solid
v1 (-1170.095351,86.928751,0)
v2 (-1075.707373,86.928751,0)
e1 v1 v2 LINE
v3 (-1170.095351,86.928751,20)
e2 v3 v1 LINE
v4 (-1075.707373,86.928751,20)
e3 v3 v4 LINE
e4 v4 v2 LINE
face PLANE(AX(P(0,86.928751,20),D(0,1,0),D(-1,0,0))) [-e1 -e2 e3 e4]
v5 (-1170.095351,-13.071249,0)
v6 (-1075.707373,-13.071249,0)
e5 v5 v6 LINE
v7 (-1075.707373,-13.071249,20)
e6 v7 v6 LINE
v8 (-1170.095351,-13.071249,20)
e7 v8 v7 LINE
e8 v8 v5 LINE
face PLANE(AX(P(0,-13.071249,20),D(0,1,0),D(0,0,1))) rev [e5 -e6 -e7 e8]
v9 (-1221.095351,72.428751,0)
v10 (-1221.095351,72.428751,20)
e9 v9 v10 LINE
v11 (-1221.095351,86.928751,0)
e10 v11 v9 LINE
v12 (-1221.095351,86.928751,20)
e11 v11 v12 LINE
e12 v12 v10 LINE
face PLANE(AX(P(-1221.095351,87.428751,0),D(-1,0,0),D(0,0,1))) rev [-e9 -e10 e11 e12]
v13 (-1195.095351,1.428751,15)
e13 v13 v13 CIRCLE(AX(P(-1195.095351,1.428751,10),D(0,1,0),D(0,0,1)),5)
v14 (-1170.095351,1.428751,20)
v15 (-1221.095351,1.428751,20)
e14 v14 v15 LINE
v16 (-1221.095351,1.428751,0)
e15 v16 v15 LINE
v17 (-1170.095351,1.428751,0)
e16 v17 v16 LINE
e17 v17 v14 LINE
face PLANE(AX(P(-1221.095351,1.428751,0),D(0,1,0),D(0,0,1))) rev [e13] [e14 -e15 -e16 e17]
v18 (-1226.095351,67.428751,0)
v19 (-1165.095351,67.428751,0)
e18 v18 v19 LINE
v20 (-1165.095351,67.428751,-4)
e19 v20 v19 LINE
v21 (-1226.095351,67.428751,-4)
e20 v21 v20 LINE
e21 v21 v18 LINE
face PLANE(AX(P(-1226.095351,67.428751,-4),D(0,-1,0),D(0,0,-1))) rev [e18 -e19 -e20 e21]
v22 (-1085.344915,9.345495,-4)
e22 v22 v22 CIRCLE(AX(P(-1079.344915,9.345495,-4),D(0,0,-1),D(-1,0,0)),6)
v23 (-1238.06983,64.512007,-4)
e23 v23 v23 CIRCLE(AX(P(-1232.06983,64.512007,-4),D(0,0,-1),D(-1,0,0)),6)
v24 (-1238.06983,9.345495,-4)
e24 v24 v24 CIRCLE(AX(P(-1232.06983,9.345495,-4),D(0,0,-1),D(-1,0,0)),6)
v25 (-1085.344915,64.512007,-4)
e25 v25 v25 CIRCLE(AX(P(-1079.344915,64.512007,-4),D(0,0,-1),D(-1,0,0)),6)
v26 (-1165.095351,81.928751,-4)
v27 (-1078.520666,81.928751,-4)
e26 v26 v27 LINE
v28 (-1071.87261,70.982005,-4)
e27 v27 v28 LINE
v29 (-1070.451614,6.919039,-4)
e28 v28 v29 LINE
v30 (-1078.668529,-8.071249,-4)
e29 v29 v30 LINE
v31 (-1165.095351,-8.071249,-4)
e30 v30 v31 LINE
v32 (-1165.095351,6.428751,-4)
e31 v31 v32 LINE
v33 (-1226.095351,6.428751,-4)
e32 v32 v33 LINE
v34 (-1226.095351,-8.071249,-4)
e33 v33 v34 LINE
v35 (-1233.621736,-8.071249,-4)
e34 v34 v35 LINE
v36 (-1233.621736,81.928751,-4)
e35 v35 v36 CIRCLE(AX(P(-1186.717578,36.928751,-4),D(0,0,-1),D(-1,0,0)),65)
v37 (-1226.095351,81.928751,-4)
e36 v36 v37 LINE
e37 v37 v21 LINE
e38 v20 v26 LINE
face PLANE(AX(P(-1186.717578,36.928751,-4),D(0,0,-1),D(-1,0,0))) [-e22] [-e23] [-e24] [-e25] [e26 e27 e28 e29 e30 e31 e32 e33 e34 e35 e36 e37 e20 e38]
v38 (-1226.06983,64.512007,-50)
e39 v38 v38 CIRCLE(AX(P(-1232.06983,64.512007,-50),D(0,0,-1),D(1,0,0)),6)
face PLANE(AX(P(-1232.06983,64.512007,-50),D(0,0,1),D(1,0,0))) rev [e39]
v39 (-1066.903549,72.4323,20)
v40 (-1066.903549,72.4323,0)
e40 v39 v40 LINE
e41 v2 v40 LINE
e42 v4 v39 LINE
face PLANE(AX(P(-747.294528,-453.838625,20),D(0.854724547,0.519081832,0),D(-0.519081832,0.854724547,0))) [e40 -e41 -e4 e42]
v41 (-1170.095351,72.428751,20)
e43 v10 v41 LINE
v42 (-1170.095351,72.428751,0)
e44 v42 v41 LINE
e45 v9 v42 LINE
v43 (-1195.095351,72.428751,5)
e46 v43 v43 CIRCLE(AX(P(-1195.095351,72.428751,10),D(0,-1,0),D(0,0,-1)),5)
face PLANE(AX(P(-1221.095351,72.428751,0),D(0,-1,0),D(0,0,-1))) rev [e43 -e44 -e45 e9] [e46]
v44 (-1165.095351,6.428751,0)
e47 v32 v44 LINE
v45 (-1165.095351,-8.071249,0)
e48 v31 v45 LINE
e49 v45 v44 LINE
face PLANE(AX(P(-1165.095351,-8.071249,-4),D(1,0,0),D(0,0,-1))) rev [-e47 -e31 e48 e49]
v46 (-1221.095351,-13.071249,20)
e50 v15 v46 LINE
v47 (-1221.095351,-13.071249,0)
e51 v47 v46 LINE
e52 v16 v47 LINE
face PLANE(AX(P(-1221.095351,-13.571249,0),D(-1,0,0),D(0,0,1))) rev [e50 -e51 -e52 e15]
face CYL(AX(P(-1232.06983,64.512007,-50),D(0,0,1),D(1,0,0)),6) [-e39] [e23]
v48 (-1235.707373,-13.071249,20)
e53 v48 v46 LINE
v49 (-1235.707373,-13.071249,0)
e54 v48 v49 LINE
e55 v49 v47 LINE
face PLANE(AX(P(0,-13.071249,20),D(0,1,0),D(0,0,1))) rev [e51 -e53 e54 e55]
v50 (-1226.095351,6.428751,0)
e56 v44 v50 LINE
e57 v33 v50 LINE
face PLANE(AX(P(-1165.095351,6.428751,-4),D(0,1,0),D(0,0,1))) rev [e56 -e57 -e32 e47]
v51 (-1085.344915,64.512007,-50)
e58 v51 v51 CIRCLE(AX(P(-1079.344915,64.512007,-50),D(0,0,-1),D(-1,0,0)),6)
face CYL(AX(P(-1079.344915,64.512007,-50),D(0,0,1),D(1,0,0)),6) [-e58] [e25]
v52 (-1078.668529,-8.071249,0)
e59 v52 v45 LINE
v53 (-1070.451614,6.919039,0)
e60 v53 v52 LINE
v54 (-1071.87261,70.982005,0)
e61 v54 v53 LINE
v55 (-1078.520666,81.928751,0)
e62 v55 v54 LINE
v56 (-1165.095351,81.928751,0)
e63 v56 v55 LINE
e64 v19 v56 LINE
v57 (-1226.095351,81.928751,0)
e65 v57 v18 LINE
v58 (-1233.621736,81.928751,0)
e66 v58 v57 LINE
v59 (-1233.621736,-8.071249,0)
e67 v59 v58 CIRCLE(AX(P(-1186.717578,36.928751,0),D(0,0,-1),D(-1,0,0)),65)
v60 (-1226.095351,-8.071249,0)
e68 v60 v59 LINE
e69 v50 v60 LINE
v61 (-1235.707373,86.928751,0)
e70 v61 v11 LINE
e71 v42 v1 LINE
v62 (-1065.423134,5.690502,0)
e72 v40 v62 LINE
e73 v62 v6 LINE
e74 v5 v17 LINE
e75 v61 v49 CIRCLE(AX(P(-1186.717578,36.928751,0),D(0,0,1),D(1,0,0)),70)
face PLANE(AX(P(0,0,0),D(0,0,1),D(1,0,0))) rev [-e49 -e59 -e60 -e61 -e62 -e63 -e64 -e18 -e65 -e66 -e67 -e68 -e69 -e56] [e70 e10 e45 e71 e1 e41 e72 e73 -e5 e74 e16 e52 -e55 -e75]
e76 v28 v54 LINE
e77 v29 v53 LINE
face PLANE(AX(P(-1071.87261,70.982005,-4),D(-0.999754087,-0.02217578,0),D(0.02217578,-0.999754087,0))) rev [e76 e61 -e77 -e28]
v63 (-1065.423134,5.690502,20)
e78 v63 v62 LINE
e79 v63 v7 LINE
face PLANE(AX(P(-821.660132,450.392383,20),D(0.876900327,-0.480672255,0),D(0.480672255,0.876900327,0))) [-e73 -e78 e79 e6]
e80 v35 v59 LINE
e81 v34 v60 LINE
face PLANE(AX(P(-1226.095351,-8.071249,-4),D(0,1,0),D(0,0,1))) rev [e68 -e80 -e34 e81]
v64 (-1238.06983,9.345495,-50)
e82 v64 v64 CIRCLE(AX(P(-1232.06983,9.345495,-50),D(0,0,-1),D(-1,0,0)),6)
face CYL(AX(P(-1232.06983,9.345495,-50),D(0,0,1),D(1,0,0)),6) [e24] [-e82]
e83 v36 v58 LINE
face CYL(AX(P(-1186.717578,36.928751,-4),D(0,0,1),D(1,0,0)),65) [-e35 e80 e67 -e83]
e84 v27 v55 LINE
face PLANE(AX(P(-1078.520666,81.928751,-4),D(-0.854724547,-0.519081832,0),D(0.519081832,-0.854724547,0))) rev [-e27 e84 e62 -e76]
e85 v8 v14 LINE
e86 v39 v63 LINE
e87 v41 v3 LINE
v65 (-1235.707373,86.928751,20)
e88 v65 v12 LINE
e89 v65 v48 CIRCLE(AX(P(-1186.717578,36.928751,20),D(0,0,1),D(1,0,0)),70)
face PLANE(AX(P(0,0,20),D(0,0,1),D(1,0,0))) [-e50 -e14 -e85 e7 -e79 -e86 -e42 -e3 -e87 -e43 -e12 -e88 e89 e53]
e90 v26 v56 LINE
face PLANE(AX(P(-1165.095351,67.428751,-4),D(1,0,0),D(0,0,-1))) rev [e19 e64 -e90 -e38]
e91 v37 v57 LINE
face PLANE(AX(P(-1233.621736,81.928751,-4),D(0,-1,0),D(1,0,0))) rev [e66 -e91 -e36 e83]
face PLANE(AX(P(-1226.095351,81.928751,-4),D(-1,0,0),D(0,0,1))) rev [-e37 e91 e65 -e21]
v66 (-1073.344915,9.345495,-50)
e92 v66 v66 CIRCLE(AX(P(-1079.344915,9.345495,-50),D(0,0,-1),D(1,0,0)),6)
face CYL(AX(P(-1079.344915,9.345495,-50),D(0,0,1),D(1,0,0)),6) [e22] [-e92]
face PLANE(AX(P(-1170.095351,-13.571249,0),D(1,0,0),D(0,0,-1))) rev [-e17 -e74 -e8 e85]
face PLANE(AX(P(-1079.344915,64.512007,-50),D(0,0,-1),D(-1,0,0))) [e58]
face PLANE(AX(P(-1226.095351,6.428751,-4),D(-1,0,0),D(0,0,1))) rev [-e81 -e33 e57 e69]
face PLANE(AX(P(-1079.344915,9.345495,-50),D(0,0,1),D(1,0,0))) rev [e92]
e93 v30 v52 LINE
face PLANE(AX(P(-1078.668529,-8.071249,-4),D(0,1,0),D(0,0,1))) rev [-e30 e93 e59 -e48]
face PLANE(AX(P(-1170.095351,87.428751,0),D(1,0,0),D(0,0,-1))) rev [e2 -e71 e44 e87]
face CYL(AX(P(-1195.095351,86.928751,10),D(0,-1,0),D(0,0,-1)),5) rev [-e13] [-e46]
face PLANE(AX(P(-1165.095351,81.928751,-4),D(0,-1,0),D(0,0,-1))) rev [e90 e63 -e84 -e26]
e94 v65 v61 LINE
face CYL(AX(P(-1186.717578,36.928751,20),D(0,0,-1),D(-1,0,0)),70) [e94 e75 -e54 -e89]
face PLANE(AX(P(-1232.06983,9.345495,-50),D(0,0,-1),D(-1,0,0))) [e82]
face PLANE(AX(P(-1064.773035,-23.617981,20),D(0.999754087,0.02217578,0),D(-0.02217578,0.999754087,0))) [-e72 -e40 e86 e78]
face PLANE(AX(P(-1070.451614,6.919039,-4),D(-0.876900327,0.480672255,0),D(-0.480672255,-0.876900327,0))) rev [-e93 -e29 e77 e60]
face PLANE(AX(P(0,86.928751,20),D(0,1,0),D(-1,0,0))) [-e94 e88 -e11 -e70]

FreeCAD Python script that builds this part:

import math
import FreeCAD as App
import Part
import Sketcher


def add_polygon(sketch, points):
    """Adds a closed chain of lines whose ends are joined by coincident constraints."""
    first, n = sketch.GeometryCount, len(points)
    for a, b in zip(points, points[1:] + points[:1]):
        sketch.addGeometry(Part.LineSegment(App.Vector(*a, 0), App.Vector(*b, 0)), False)
    for i in range(n):
        sketch.addConstraint(Sketcher.Constraint("Coincident", first + i, 2, first + (i + 1) % n, 1))

doc = App.newDocument("Part")
body = doc.addObject("PartDesign::Body", "Body")

# Sketch on XY plane
sketch1 = body.newObject("Sketcher::SketchObject", "Sketch")
sketch1.AttachmentSupport = (doc.getObject("XY_Plane"), [""])
sketch1.MapMode = "FlatFace"
sketch1.addGeometry([
    Part.LineSegment(App.Vector(-1236, -13, 0), App.Vector(-1076, -13, 0)),  # 0
    Part.LineSegment(App.Vector(-1076, -13, 0), App.Vector(-1065, 6, 0)),  # 1
    Part.LineSegment(App.Vector(-1065, 6, 0), App.Vector(-1067, 72, 0)),  # 2
    Part.LineSegment(App.Vector(-1067, 72, 0), App.Vector(-1076, 87, 0)),  # 3
    Part.LineSegment(App.Vector(-1076, 87, 0), App.Vector(-1236, 87, 0)),  # 4
    Part.ArcOfCircle(Part.Circle(App.Vector(-1187, 37, 0), App.Vector(0, 0, 1), 70), math.radians(134), math.radians(226)),  # 5
], False)
sketch1.addConstraint([
    Sketcher.Constraint("Coincident", 0, 2, 1, 1),
    Sketcher.Constraint("Coincident", 1, 2, 2, 1),
    Sketcher.Constraint("Coincident", 2, 2, 3, 1),
    Sketcher.Constraint("Coincident", 3, 2, 4, 1),
    Sketcher.Constraint("Coincident", 4, 2, 5, 1),
    Sketcher.Constraint("Coincident", 5, 2, 0, 1),
    Sketcher.Constraint("Horizontal", 0),
    Sketcher.Constraint("Horizontal", 4),
    Sketcher.Constraint("Vertical", 0, 2, 3, 2),
    Sketcher.Constraint("Vertical", 4, 2, 5, 2),
    Sketcher.Constraint("Radius", 5, 70.0),
    Sketcher.Constraint("DistanceX", 0, 1, 0, 2, 160.0),
    Sketcher.Constraint("DistanceY", 0, 2, 5, 3, 50.0),
    Sketcher.Constraint("DistanceY", -1, 1, 1, 2, 5.690502),
    Sketcher.Constraint("DistanceY", -1, 1, 2, 2, 72.4323),
    Sketcher.Constraint("DistanceY", -1, 1, 5, 3, 36.928751),
    Sketcher.Constraint("DistanceX", 2, 2, -1, 1, 1066.903549),
    Sketcher.Constraint("DistanceX", 0, 2, 1, 2, 10.284239),
    Sketcher.Constraint("DistanceX", 5, 3, 2, 2, 119.814029),
])
pad1 = body.newObject("PartDesign::Pad", "Pad")
pad1.Profile = sketch1
pad1.Length = 20

# Sketch on XY plane
sketch2 = body.newObject("Sketcher::SketchObject", "Sketch001")
sketch2.AttachmentSupport = (doc.getObject("XY_Plane"), [""])
sketch2.MapMode = "FlatFace"
sketch2.AttachmentOffset = App.Placement(App.Vector(0, 0, 20), App.Rotation())
add_polygon(sketch2, [(-1221, 1), (-1221, -14), (-1170, -14), (-1170, 1)])  # lines 0-3
add_polygon(sketch2, [(-1221, 87), (-1221, 72), (-1170, 72), (-1170, 87)])  # lines 4-7
sketch2.addConstraint([
    Sketcher.Constraint("Vertical", 0),
    Sketcher.Constraint("Horizontal", 1),
    Sketcher.Constraint("Vertical", 2),
    Sketcher.Constraint("Horizontal", 3),
    Sketcher.Constraint("Vertical", 4),
    Sketcher.Constraint("Horizontal", 5),
    Sketcher.Constraint("Vertical", 6),
    Sketcher.Constraint("Horizontal", 7),
    Sketcher.Constraint("Vertical", 3, 2, 4, 2),
    Sketcher.Constraint("Vertical", 2, 2, 5, 2),
    Sketcher.Constraint("Equal", 2, 4),
    Sketcher.Constraint("DistanceX", 1, 1, 1, 2, 51.0),
    Sketcher.Constraint("DistanceY", 0, 2, 0, 1, 15.0),
    Sketcher.Constraint("DistanceY", 3, 2, 4, 2, 71.0),
    Sketcher.Constraint("DistanceX", 0, 2, -1, 1, 1221.095351),
    Sketcher.Constraint("DistanceY", 0, 2, -1, 1, 13.571249),
])
pocket1 = body.newObject("PartDesign::Pocket", "Pocket")
pocket1.Profile = sketch2
pocket1.Type = "ThroughAll"
pocket1.Midplane = True

# Sketch on XY plane
sketch3 = body.newObject("Sketcher::SketchObject", "Sketch002")
sketch3.AttachmentSupport = (doc.getObject("XY_Plane"), [""])
sketch3.MapMode = "FlatFace"
sketch3.addGeometry([
    Part.Circle(App.Vector(-1079, 65, 0), App.Vector(0, 0, 1), 6),
    Part.Circle(App.Vector(-1079, 9, 0), App.Vector(0, 0, 1), 6),
    Part.Circle(App.Vector(-1232, 9, 0), App.Vector(0, 0, 1), 6),
    Part.Circle(App.Vector(-1232, 65, 0), App.Vector(0, 0, 1), 6),
], False)
sketch3.addConstraint([
    Sketcher.Constraint("Equal", 0, 1),
    Sketcher.Constraint("Equal", 1, 2),
    Sketcher.Constraint("Equal", 2, 3),
    Sketcher.Constraint("Horizontal", 1, 3, 2, 3),
    Sketcher.Constraint("Horizontal", 0, 3, 3, 3),
    Sketcher.Constraint("Vertical", 0, 3, 1, 3),
    Sketcher.Constraint("Vertical", 2, 3, 3, 3),
    Sketcher.Constraint("Diameter", 0, 12.0),
    Sketcher.Constraint("DistanceX", 2, 3, -1, 1, 1232.06983),
    Sketcher.Constraint("DistanceX", 0, 3, -1, 1, 1079.344915),
    Sketcher.Constraint("DistanceY", -1, 1, 0, 3, 64.512007),
    Sketcher.Constraint("DistanceY", -1, 1, 1, 3, 9.345495),
])
pad2 = body.newObject("PartDesign::Pad", "Pad001")
pad2.Profile = sketch3
pad2.Length = 50
pad2.Reversed = True

# Sketch on XZ plane
sketch4 = body.newObject("Sketcher::SketchObject", "Sketch003")
sketch4.AttachmentSupport = (doc.getObject("XZ_Plane"), [""])
sketch4.MapMode = "FlatFace"
sketch4.AttachmentOffset = App.Placement(App.Vector(0, 0, -1.428751), App.Rotation())
sketch4.addGeometry(Part.Circle(App.Vector(-1195, 10, 0), App.Vector(0, 0, 1), 5), False)
sketch4.addConstraint([
    Sketcher.Constraint("Diameter", 0, 10.0),
    Sketcher.Constraint("DistanceY", -1, 1, 0, 3, 10.0),
    Sketcher.Constraint("DistanceX", 0, 3, -1, 1, 1195.095351),
])
pocket2 = body.newObject("PartDesign::Pocket", "Pocket001")
pocket2.Profile = sketch4
pocket2.Type = "ThroughAll"
pocket2.Midplane = True

# Sketch on XY plane
sketch5 = body.newObject("Sketcher::SketchObject", "Sketch004")
sketch5.AttachmentSupport = (doc.getObject("XY_Plane"), [""])
sketch5.MapMode = "FlatFace"
sketch5.addGeometry([
    Part.LineSegment(App.Vector(-1165, 6, 0), App.Vector(-1226, 6, 0)),  # 0
    Part.LineSegment(App.Vector(-1226, 6, 0), App.Vector(-1226, -8, 0)),  # 1
    Part.LineSegment(App.Vector(-1226, -8, 0), App.Vector(-1234, -8, 0)),  # 2
    Part.ArcOfCircle(Part.Circle(App.Vector(-1187, 37, 0), App.Vector(0, 0, 1), 65), math.radians(136), math.radians(224)),  # 3
    Part.LineSegment(App.Vector(-1234, 82, 0), App.Vector(-1226, 82, 0)),  # 4
    Part.LineSegment(App.Vector(-1226, 82, 0), App.Vector(-1226, 67, 0)),  # 5
    Part.LineSegment(App.Vector(-1226, 67, 0), App.Vector(-1165, 67, 0)),  # 6
    Part.LineSegment(App.Vector(-1165, 67, 0), App.Vector(-1165, 82, 0)),  # 7
    Part.LineSegment(App.Vector(-1165, 82, 0), App.Vector(-1079, 82, 0)),  # 8
    Part.LineSegment(App.Vector(-1079, 82, 0), App.Vector(-1072, 71, 0)),  # 9
    Part.LineSegment(App.Vector(-1072, 71, 0), App.Vector(-1070, 7, 0)),  # 10
    Part.LineSegment(App.Vector(-1070, 7, 0), App.Vector(-1079, -8, 0)),  # 11
    Part.LineSegment(App.Vector(-1079, -8, 0), App.Vector(-1165, -8, 0)),  # 12
    Part.LineSegment(App.Vector(-1165, -8, 0), App.Vector(-1165, 6, 0)),  # 13
], False)
sketch5.addConstraint([
    Sketcher.Constraint("Coincident", 0, 2, 1, 1),
    Sketcher.Constraint("Coincident", 1, 2, 2, 1),
    Sketcher.Constraint("Coincident", 2, 2, 3, 2),
    Sketcher.Constraint("Coincident", 3, 1, 4, 1),
    Sketcher.Constraint("Coincident", 4, 2, 5, 1),
    Sketcher.Constraint("Coincident", 5, 2, 6, 1),
    Sketcher.Constraint("Coincident", 6, 2, 7, 1),
    Sketcher.Constraint("Coincident", 7, 2, 8, 1),
    Sketcher.Constraint("Coincident", 8, 2, 9, 1),
    Sketcher.Constraint("Coincident", 9, 2, 10, 1),
    Sketcher.Constraint("Coincident", 10, 2, 11, 1),
    Sketcher.Constraint("Coincident", 11, 2, 12, 1),
    Sketcher.Constraint("Coincident", 12, 2, 13, 1),
    Sketcher.Constraint("Coincident", 13, 2, 0, 1),
    Sketcher.Constraint("Horizontal", 0),
    Sketcher.Constraint("Vertical", 1),
    Sketcher.Constraint("Horizontal", 2),
    Sketcher.Constraint("Horizontal", 4),
    Sketcher.Constraint("Vertical", 5),
    Sketcher.Constraint("Horizontal", 6),
    Sketcher.Constraint("Vertical", 7),
    Sketcher.Constraint("Horizontal", 8),
    Sketcher.Constraint("Horizontal", 12),
    Sketcher.Constraint("Vertical", 13),
    Sketcher.Constraint("Horizontal", 4, 2, 7, 2),
    Sketcher.Constraint("Horizontal", 2, 2, 11, 2),
    Sketcher.Constraint("Vertical", 2, 2, 3, 1),
    Sketcher.Constraint("Vertical", 1, 2, 4, 2),
    Sketcher.Constraint("Vertical", 7, 2, 12, 2),
    Sketcher.Constraint("Equal", 1, 5),
    Sketcher.Constraint("Radius", 3, 65.0),
    Sketcher.Constraint("DistanceX", 0, 2, 0, 1, 61.0),
    Sketcher.Constraint("DistanceY", 1, 2, 1, 1, 14.5),
    Sketcher.Constraint("DistanceY", 1, 2, 3, 3, 45.0),
    Sketcher.Constraint("Distance", 9, 12.807338),
    Sketcher.Constraint("Distance", 11, 17.094631),
    Sketcher.Constraint("DistanceX", 2, 2, 2, 1, 7.526384),
    Sketcher.Constraint("DistanceX", 8, 1, 8, 2, 86.574685),
    Sketcher.Constraint("DistanceX", 12, 2, 12, 1, 86.426823),
    Sketcher.Constraint("DistanceY", -1, 1, 3, 3, 36.928751),
    Sketcher.Constraint("DistanceX", 0, 2, -1, 1, 1226.095351),
    Sketcher.Constraint("DistanceX", 9, 2, -1, 1, 1071.87261),
    Sketcher.Constraint("DistanceY", -1, 1, 10, 2, 6.919039),
])
pad3 = body.newObject("PartDesign::Pad", "Pad002")
pad3.Profile = sketch5
pad3.Length = 4
pad3.Reversed = True

# Sketch on XY plane
sketch6 = body.newObject("Sketcher::SketchObject", "Sketch005")
sketch6.AttachmentSupport = (doc.getObject("XY_Plane"), [""])
sketch6.MapMode = "FlatFace"
sketch6.addGeometry([
    Part.LineSegment(App.Vector(-1170, 1, 0), App.Vector(-1221, 1, 0)),  # 0
    Part.LineSegment(App.Vector(-1221, 1, 0), App.Vector(-1221, -13, 0)),  # 1
    Part.LineSegment(App.Vector(-1221, -13, 0), App.Vector(-1236, -13, 0)),  # 2
    Part.ArcOfCircle(Part.Circle(App.Vector(-1187, 37, 0), App.Vector(0, 0, 1), 70), math.radians(134), math.radians(226)),  # 3
    Part.LineSegment(App.Vector(-1236, 87, 0), App.Vector(-1221, 87, 0)),  # 4
    Part.LineSegment(App.Vector(-1221, 87, 0), App.Vector(-1221, 72, 0)),  # 5
    Part.LineSegment(App.Vector(-1221, 72, 0), App.Vector(-1170, 72, 0)),  # 6
    Part.LineSegment(App.Vector(-1170, 72, 0), App.Vector(-1170, 87, 0)),  # 7
    Part.LineSegment(App.Vector(-1170, 87, 0), App.Vector(-1076, 87, 0)),  # 8
    Part.LineSegment(App.Vector(-1076, 87, 0), App.Vector(-1067, 72, 0)),  # 9
    Part.LineSegment(App.Vector(-1067, 72, 0), App.Vector(-1065, 6, 0)),  # 10
    Part.LineSegment(App.Vector(-1065, 6, 0), App.Vector(-1076, -13, 0)),  # 11
    Part.LineSegment(App.Vector(-1076, -13, 0), App.Vector(-1170, -13, 0)),  # 12
    Part.LineSegment(App.Vector(-1170, -13, 0), App.Vector(-1170, 1, 0)),  # 13
], False)
sketch6.addConstraint([
    Sketcher.Constraint("Coincident", 0, 2, 1, 1),
    Sketcher.Constraint("Coincident", 1, 2, 2, 1),
    Sketcher.Constraint("Coincident", 2, 2, 3, 2),
    Sketcher.Constraint("Coincident", 3, 1, 4, 1),
    Sketcher.Constraint("Coincident", 4, 2, 5, 1),
    Sketcher.Constraint("Coincident", 5, 2, 6, 1),
    Sketcher.Constraint("Coincident", 6, 2, 7, 1),
    Sketcher.Constraint("Coincident", 7, 2, 8, 1),
    Sketcher.Constraint("Coincident", 8, 2, 9, 1),
    Sketcher.Constraint("Coincident", 9, 2, 10, 1),
    Sketcher.Constraint("Coincident", 10, 2, 11, 1),
    Sketcher.Constraint("Coincident", 11, 2, 12, 1),
    Sketcher.Constraint("Coincident", 12, 2, 13, 1),
    Sketcher.Constraint("Coincident", 13, 2, 0, 1),
    Sketcher.Constraint("Horizontal", 0),
    Sketcher.Constraint("Vertical", 1),
    Sketcher.Constraint("Horizontal", 2),
    Sketcher.Constraint("Horizontal", 4),
    Sketcher.Constraint("Vertical", 5),
    Sketcher.Constraint("Horizontal", 6),
    Sketcher.Constraint("Vertical", 7),
    Sketcher.Constraint("Horizontal", 8),
    Sketcher.Constraint("Horizontal", 12),
    Sketcher.Constraint("Vertical", 13),
    Sketcher.Constraint("Horizontal", 4, 2, 7, 2),
    Sketcher.Constraint("Horizontal", 2, 2, 11, 2),
    Sketcher.Constraint("Vertical", 2, 2, 3, 1),
    Sketcher.Constraint("Vertical", 1, 2, 4, 2),
    Sketcher.Constraint("Vertical", 8, 2, 11, 2),
    Sketcher.Constraint("Vertical", 7, 2, 12, 2),
    Sketcher.Constraint("Equal", 1, 5),
    Sketcher.Constraint("Radius", 3, 70.0),
    Sketcher.Constraint("DistanceX", 0, 2, 0, 1, 51.0),
    Sketcher.Constraint("DistanceY", 1, 2, 1, 1, 14.5),
    Sketcher.Constraint("DistanceY", 1, 2, 3, 3, 50.0),
    Sketcher.Constraint("DistanceX", 2, 2, 2, 1, 14.612021),
    Sketcher.Constraint("DistanceX", 8, 1, 8, 2, 94.387979),
    Sketcher.Constraint("DistanceY", -1, 1, 9, 2, 72.4323),
    Sketcher.Constraint("DistanceY", -1, 1, 10, 2, 5.690502),
    Sketcher.Constraint("DistanceY", -1, 1, 3, 3, 36.928751),
    Sketcher.Constraint("DistanceX", 0, 2, -1, 1, 1221.095351),
    Sketcher.Constraint("DistanceX", 9, 2, -1, 1, 1066.903549),
    Sketcher.Constraint("DistanceX", 8, 2, 10, 2, 10.284239),
])
pad4 = body.newObject("PartDesign::Pad", "Pad003")
pad4.Profile = sketch6
pad4.Length = 5

doc.recompute()
